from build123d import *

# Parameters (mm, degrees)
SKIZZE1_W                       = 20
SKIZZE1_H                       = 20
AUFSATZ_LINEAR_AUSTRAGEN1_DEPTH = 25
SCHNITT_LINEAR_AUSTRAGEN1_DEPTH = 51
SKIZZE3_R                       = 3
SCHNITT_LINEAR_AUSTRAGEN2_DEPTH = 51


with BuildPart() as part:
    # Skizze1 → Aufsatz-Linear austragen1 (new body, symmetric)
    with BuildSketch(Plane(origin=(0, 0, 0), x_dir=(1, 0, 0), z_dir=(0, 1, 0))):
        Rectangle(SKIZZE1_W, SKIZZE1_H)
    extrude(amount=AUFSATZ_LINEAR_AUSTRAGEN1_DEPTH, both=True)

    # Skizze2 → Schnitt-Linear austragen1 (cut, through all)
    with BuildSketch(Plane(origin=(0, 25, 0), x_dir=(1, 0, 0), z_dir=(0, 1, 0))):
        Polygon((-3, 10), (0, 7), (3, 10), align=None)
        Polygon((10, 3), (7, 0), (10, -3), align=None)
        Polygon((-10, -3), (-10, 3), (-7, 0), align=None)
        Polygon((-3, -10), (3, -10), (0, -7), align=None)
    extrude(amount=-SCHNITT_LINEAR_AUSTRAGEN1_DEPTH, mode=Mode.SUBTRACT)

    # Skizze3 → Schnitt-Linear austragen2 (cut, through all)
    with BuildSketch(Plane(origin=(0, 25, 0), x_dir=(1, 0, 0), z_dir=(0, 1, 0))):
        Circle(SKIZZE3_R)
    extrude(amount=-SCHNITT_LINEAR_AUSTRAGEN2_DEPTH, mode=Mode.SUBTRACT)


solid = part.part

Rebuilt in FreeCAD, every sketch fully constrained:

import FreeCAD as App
import Part
import Sketcher


def add_polygon(sketch, points):
    """Adds a closed chain of lines whose ends are joined by coincident constraints."""
    first, n = sketch.GeometryCount, len(points)
    for a, b in zip(points, points[1:] + points[:1]):
        sketch.addGeometry(Part.LineSegment(App.Vector(*a, 0), App.Vector(*b, 0)), False)
    for i in range(n):
        sketch.addConstraint(Sketcher.Constraint("Coincident", first + i, 2, first + (i + 1) % n, 1))

doc = App.newDocument("Part")
body = doc.addObject("PartDesign::Body", "Body")

# Sketch on XZ plane
sketch1 = body.newObject("Sketcher::SketchObject", "Sketch")
sketch1.AttachmentSupport = (doc.getObject("XZ_Plane"), [""])
sketch1.MapMode = "FlatFace"
add_polygon(sketch1, [(-10, -10), (-10, 10), (10, 10), (10, -10)])  # lines 0-3
sketch1.addConstraint(Sketcher.Constraint("Vertical", 0))
sketch1.addConstraint(Sketcher.Constraint("Horizontal", 1))
sketch1.addConstraint(Sketcher.Constraint("Vertical", 2))
sketch1.addConstraint(Sketcher.Constraint("Horizontal", 3))
sketch1.addConstraint(Sketcher.Constraint("Symmetric", 0, 2, 2, 2, -1, 1))
sketch1.addConstraint(Sketcher.Constraint("Equal", 3, 0))
sketch1.addConstraint(Sketcher.Constraint("DistanceX", 1, 1, 1, 2, 20.0))
pad1 = body.newObject("PartDesign::Pad", "Pad")
pad1.Profile = sketch1
pad1.Length = 50
pad1.Midplane = True

# Sketch on XZ plane
sketch2 = body.newObject("Sketcher::SketchObject", "Sketch001")
sketch2.AttachmentSupport = (doc.getObject("XZ_Plane"), [""])
sketch2.MapMode = "FlatFace"
sketch2.AttachmentOffset = App.Placement(App.Vector(0, 0, -25), App.Rotation())
add_polygon(sketch2, [(-3, -10), (0, -7), (3, -10)])  # lines 0-2
add_polygon(sketch2, [(10, -3), (7, 0), (10, 3)])  # lines 3-5
add_polygon(sketch2, [(-10, -3), (-10, 3), (-7, 0)])  # lines 6-8
add_polygon(sketch2, [(-3, 10), (3, 10), (0, 7)])  # lines 9-11
sketch2.addConstraint(Sketcher.Constraint("Horizontal", 2))
sketch2.addConstraint(Sketcher.Constraint("Vertical", 5))
sketch2.addConstraint(Sketcher.Constraint("Vertical", 6))
sketch2.addConstraint(Sketcher.Constraint("Horizontal", 9))
sketch2.addConstraint(Sketcher.Constraint("Symmetric", 5, 2, 6, 2, -1, 1))
sketch2.addConstraint(Sketcher.Constraint("Symmetric", 3, 2, 7, 2, -1, 1))
sketch2.addConstraint(Sketcher.Constraint("Symmetric", 2, 2, 9, 2, -1, 1))
sketch2.addConstraint(Sketcher.Constraint("Symmetric", 0, 2, 10, 2, -1, 1))
sketch2.addConstraint(Sketcher.Constraint("PointOnObject", 0, 2, -2))
sketch2.addConstraint(Sketcher.Constraint("PointOnObject", 3, 2, -1))
sketch2.addConstraint(Sketcher.Constraint("Perpendicular", 0, 1))
sketch2.addConstraint(Sketcher.Constraint("Parallel", 1, 3))
sketch2.addConstraint(Sketcher.Constraint("Perpendicular", 3, 4))
sketch2.addConstraint(Sketcher.Constraint("Perpendicular", 7, 8))
sketch2.addConstraint(Sketcher.Constraint("Perpendicular", 10, 11))
sketch2.addConstraint(Sketcher.Constraint("Horizontal", 4, 2, 6, 2))
sketch2.addConstraint(Sketcher.Constraint("Equal", 9, 5))
sketch2.addConstraint(Sketcher.Constraint("DistanceX", 2, 2, 2, 1, 6.0))
sketch2.addConstraint(Sketcher.Constraint("DistanceY", 0, 2, -1, 1, 7.0))
sketch2.addConstraint(Sketcher.Constraint("DistanceX", -1, 1, 3, 2, 7.0))
pocket1 = body.newObject("PartDesign::Pocket", "Pocket")
pocket1.Profile = sketch2
pocket1.Type = "ThroughAll"
pocket1.Reversed = True

# Sketch on XZ plane
sketch3 = body.newObject("Sketcher::SketchObject", "Sketch002")
sketch3.AttachmentSupport = (doc.getObject("XZ_Plane"), [""])
sketch3.MapMode = "FlatFace"
sketch3.AttachmentOffset = App.Placement(App.Vector(0, 0, -25), App.Rotation())
sketch3.addGeometry(Part.Circle(App.Vector(0, 0, 0), App.Vector(0, 0, 1), 3), False)
sketch3.addConstraint(Sketcher.Constraint("Coincident", 0, 3, -1, 1))
sketch3.addConstraint(Sketcher.Constraint("Diameter", 0, 6.0))
pocket2 = body.newObject("PartDesign::Pocket", "Pocket001")
pocket2.Profile = sketch3
pocket2.Type = "ThroughAll"
pocket2.Reversed = True

doc.recompute()
